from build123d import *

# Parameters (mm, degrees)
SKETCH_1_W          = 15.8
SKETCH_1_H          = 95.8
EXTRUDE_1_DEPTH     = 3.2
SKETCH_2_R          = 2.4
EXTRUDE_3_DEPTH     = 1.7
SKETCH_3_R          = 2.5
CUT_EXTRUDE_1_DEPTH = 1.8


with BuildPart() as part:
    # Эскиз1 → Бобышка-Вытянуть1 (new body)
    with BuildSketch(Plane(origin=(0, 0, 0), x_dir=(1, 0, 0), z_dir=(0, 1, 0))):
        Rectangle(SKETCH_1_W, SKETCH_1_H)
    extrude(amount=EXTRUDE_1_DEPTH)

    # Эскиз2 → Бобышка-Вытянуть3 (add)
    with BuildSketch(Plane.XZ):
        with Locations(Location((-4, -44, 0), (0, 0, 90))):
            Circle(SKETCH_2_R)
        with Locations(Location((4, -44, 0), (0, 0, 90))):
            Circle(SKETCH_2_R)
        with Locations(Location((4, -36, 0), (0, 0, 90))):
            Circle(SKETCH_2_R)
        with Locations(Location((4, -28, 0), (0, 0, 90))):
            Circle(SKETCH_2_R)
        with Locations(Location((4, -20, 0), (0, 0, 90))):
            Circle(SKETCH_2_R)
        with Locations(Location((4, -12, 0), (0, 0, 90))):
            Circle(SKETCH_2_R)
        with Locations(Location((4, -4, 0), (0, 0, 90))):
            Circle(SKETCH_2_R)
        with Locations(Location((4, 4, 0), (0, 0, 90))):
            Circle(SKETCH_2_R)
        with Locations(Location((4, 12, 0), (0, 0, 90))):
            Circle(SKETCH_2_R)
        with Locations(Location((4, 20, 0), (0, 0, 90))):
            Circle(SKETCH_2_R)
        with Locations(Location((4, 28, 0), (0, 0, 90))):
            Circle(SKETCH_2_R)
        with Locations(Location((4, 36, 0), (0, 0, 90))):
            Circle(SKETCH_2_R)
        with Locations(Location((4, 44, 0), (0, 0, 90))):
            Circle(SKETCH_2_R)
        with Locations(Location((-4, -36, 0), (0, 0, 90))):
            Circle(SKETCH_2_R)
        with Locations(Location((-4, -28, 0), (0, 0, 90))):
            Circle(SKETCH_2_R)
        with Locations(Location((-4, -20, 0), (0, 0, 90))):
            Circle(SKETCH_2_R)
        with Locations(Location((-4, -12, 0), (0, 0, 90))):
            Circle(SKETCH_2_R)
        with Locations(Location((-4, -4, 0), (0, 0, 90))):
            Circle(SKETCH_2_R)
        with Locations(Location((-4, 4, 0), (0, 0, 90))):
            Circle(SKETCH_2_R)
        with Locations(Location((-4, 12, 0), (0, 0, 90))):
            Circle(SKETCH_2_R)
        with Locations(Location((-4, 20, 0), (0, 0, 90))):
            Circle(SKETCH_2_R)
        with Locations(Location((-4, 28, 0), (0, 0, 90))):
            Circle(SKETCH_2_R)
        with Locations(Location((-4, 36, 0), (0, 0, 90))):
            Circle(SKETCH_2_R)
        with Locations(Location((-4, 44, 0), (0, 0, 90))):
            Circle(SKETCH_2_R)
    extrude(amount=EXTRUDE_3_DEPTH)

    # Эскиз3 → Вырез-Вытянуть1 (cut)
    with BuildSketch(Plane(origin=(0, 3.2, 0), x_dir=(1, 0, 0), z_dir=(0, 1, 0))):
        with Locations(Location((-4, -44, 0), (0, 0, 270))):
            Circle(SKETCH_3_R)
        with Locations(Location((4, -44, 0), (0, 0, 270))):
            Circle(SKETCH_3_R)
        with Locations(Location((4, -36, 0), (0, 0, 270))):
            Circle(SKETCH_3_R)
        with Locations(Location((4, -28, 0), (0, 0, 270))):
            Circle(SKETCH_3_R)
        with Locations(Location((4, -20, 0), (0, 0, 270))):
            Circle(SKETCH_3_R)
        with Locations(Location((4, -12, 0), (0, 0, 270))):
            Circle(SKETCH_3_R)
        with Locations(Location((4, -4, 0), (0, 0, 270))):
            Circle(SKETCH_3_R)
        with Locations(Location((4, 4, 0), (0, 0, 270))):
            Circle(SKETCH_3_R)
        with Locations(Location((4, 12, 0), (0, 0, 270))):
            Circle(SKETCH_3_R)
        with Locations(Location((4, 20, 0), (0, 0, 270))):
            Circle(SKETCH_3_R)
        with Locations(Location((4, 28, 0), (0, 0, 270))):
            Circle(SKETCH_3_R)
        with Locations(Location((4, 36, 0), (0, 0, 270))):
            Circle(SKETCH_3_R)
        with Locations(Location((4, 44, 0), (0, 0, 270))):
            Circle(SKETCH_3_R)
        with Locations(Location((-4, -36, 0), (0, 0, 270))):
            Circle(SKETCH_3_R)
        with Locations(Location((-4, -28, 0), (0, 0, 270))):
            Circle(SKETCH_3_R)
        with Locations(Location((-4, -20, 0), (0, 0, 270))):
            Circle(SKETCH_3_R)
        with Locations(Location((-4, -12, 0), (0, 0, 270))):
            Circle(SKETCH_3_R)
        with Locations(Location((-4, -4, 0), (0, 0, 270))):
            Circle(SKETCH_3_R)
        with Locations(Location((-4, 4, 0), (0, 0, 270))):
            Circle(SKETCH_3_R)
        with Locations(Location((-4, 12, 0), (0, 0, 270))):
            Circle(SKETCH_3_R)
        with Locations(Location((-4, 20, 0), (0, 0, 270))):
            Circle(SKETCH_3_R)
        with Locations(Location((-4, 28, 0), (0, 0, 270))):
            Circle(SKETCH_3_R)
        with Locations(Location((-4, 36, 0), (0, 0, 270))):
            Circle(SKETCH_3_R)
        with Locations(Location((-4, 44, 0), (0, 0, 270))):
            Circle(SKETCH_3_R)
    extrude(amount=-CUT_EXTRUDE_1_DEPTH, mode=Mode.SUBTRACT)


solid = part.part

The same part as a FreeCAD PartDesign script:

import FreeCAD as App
import Part
import Sketcher

doc = App.newDocument("Part")
body = doc.addObject("PartDesign::Body", "Body")

# Sketch on XZ plane
sketch1 = body.newObject("Sketcher::SketchObject", "Sketch")
sketch1.AttachmentSupport = (doc.getObject("XZ_Plane"), [""])
sketch1.MapMode = "FlatFace"
sketch1.addGeometry(Part.LineSegment(App.Vector(-7.9, -47.9, 0), App.Vector(-7.9, 47.9, 0)), False)
sketch1.addGeometry(Part.LineSegment(App.Vector(-7.9, 47.9, 0), App.Vector(7.9, 47.9, 0)), False)
sketch1.addGeometry(Part.LineSegment(App.Vector(7.9, 47.9, 0), App.Vector(7.9, -47.9, 0)), False)
sketch1.addGeometry(Part.LineSegment(App.Vector(7.9, -47.9, 0), App.Vector(-7.9, -47.9, 0)), False)
sketch1.addConstraint(Sketcher.Constraint("Coincident", 0, 2, 1, 1))
sketch1.addConstraint(Sketcher.Constraint("Coincident", 1, 2, 2, 1))
sketch1.addConstraint(Sketcher.Constraint("Coincident", 2, 2, 3, 1))
sketch1.addConstraint(Sketcher.Constraint("Coincident", 3, 2, 0, 1))
sketch1.addConstraint(Sketcher.Constraint("Vertical", 0))
sketch1.addConstraint(Sketcher.Constraint("Horizontal", 1))
sketch1.addConstraint(Sketcher.Constraint("Vertical", 2))
sketch1.addConstraint(Sketcher.Constraint("Horizontal", 3))
sketch1.addConstraint(Sketcher.Constraint("Symmetric", 0, 2, 2, 2, -1, 1))
sketch1.addConstraint(Sketcher.Constraint("DistanceX", 1, 1, 1, 2, 15.8))
sketch1.addConstraint(Sketcher.Constraint("DistanceY", 0, 1, 0, 2, 95.8))
pad1 = body.newObject("PartDesign::Pad", "Pad")
pad1.Profile = sketch1
pad1.Length = 3.2
pad1.Reversed = True

# Sketch on XZ plane
sketch2 = body.newObject("Sketcher::SketchObject", "Sketch001")
sketch2.AttachmentSupport = (doc.getObject("XZ_Plane"), [""])
sketch2.MapMode = "FlatFace"
sketch2.addGeometry(Part.Circle(App.Vector(-4, -44, 0), App.Vector(0, 0, 1), 2.4), False)
sketch2.addGeometry(Part.Circle(App.Vector(4, -44, 0), App.Vector(0, 0, 1), 2.4), False)
sketch2.addGeometry(Part.Circle(App.Vector(4, -36, 0), App.Vector(0, 0, 1), 2.4), False)
sketch2.addGeometry(Part.Circle(App.Vector(4, -28, 0), App.Vector(0, 0, 1), 2.4), False)
sketch2.addGeometry(Part.Circle(App.Vector(4, -20, 0), App.Vector(0, 0, 1), 2.4), False)
sketch2.addGeometry(Part.Circle(App.Vector(4, -12, 0), App.Vector(0, 0, 1), 2.4), False)
sketch2.addGeometry(Part.Circle(App.Vector(4, -4, 0), App.Vector(0, 0, 1), 2.4), False)
sketch2.addGeometry(Part.Circle(App.Vector(4, 4, 0), App.Vector(0, 0, 1), 2.4), False)
sketch2.addGeometry(Part.Circle(App.Vector(4, 12, 0), App.Vector(0, 0, 1), 2.4), False)
sketch2.addGeometry(Part.Circle(App.Vector(4, 20, 0), App.Vector(0, 0, 1), 2.4), False)
sketch2.addGeometry(Part.Circle(App.Vector(4, 28, 0), App.Vector(0, 0, 1), 2.4), False)
sketch2.addGeometry(Part.Circle(App.Vector(4, 36, 0), App.Vector(0, 0, 1), 2.4), False)
sketch2.addGeometry(Part.Circle(App.Vector(4, 44, 0), App.Vector(0, 0, 1), 2.4), False)
sketch2.addGeometry(Part.Circle(App.Vector(-4, -36, 0), App.Vector(0, 0, 1), 2.4), False)
sketch2.addGeometry(Part.Circle(App.Vector(-4, -28, 0), App.Vector(0, 0, 1), 2.4), False)
sketch2.addGeometry(Part.Circle(App.Vector(-4, -20, 0), App.Vector(0, 0, 1), 2.4), False)
sketch2.addGeometry(Part.Circle(App.Vector(-4, -12, 0), App.Vector(0, 0, 1), 2.4), False)
sketch2.addGeometry(Part.Circle(App.Vector(-4, -4, 0), App.Vector(0, 0, 1), 2.4), False)
sketch2.addGeometry(Part.Circle(App.Vector(-4, 4, 0), App.Vector(0, 0, 1), 2.4), False)
sketch2.addGeometry(Part.Circle(App.Vector(-4, 12, 0), App.Vector(0, 0, 1), 2.4), False)
sketch2.addGeometry(Part.Circle(App.Vector(-4, 20, 0), App.Vector(0, 0, 1), 2.4), False)
sketch2.addGeometry(Part.Circle(App.Vector(-4, 28, 0), App.Vector(0, 0, 1), 2.4), False)
sketch2.addGeometry(Part.Circle(App.Vector(-4, 36, 0), App.Vector(0, 0, 1), 2.4), False)
sketch2.addGeometry(Part.Circle(App.Vector(-4, 44, 0), App.Vector(0, 0, 1), 2.4), False)
sketch2.addConstraint(Sketcher.Constraint("Equal", 0, 1))
sketch2.addConstraint(Sketcher.Constraint("Equal", 1, 2))
sketch2.addConstraint(Sketcher.Constraint("Equal", 2, 3))
sketch2.addConstraint(Sketcher.Constraint("Equal", 3, 4))
sketch2.addConstraint(Sketcher.Constraint("Equal", 4, 5))
sketch2.addConstraint(Sketcher.Constraint("Equal", 5, 6))
sketch2.addConstraint(Sketcher.Constraint("Equal", 6, 7))
sketch2.addConstraint(Sketcher.Constraint("Equal", 7, 8))
sketch2.addConstraint(Sketcher.Constraint("Equal", 8, 9))
sketch2.addConstraint(Sketcher.Constraint("Equal", 9, 10))
sketch2.addConstraint(Sketcher.Constraint("Equal", 10, 11))
sketch2.addConstraint(Sketcher.Constraint("Equal", 11, 12))
sketch2.addConstraint(Sketcher.Constraint("Equal", 12, 13))
sketch2.addConstraint(Sketcher.Constraint("Equal", 13, 14))
sketch2.addConstraint(Sketcher.Constraint("Equal", 14, 15))
sketch2.addConstraint(Sketcher.Constraint("Equal", 15, 16))
sketch2.addConstraint(Sketcher.Constraint("Equal", 16, 17))
sketch2.addConstraint(Sketcher.Constraint("Equal", 17, 18))
sketch2.addConstraint(Sketcher.Constraint("Equal", 18, 19))
sketch2.addConstraint(Sketcher.Constraint("Equal", 19, 20))
sketch2.addConstraint(Sketcher.Constraint("Equal", 20, 21))
sketch2.addConstraint(Sketcher.Constraint("Equal", 21, 22))
sketch2.addConstraint(Sketcher.Constraint("Equal", 22, 23))
sketch2.addConstraint(Sketcher.Constraint("Symmetric", 0, 3, 12, 3, -1, 1))
sketch2.addConstraint(Sketcher.Constraint("Symmetric", 11, 3, 13, 3, -1, 1))
sketch2.addConstraint(Sketcher.Constraint("Symmetric", 10, 3, 14, 3, -1, 1))
sketch2.addConstraint(Sketcher.Constraint("Symmetric", 9, 3, 15, 3, -1, 1))
sketch2.addConstraint(Sketcher.Constraint("Symmetric", 8, 3, 16, 3, -1, 1))
sketch2.addConstraint(Sketcher.Constraint("Symmetric", 7, 3, 17, 3, -1, 1))
sketch2.addConstraint(Sketcher.Constraint("Symmetric", 6, 3, 18, 3, -1, 1))
sketch2.addConstraint(Sketcher.Constraint("Symmetric", 5, 3, 19, 3, -1, 1))
sketch2.addConstraint(Sketcher.Constraint("Symmetric", 4, 3, 20, 3, -1, 1))
sketch2.addConstraint(Sketcher.Constraint("Symmetric", 3, 3, 21, 3, -1, 1))
sketch2.addConstraint(Sketcher.Constraint("Symmetric", 2, 3, 22, 3, -1, 1))
sketch2.addConstraint(Sketcher.Constraint("Symmetric", 1, 3, 23, 3, -1, 1))
sketch2.addConstraint(Sketcher.Constraint("Symmetric", 0, 3, 1, 3, -2))
sketch2.addConstraint(Sketcher.Constraint("Symmetric", 2, 3, 13, 3, -2))
sketch2.addConstraint(Sketcher.Constraint("Symmetric", 3, 3, 14, 3, -2))
sketch2.addConstraint(Sketcher.Constraint("Symmetric", 4, 3, 15, 3, -2))
sketch2.addConstraint(Sketcher.Constraint("Symmetric", 5, 3, 16, 3, -2))
sketch2.addConstraint(Sketcher.Constraint("Symmetric", 6, 3, 17, 3, -2))
sketch2.addConstraint(Sketcher.Constraint("Vertical", 1, 3, 2, 3))
sketch2.addConstraint(Sketcher.Constraint("Vertical", 2, 3, 3, 3))
sketch2.addConstraint(Sketcher.Constraint("Vertical", 3, 3, 4, 3))
sketch2.addConstraint(Sketcher.Constraint("Vertical", 4, 3, 5, 3))
sketch2.addConstraint(Sketcher.Constraint("Vertical", 5, 3, 6, 3))
sketch2.addConstraint(Sketcher.Constraint("Diameter", 0, 4.8))
sketch2.addConstraint(Sketcher.Constraint("DistanceX", 0, 3, -1, 1, 4.0))
sketch2.addConstraint(Sketcher.Constraint("DistanceY", 0, 3, -1, 1, 44.0))
sketch2.addConstraint(Sketcher.Constraint("DistanceY", 2, 3, -1, 1, 36.0))
sketch2.addConstraint(Sketcher.Constraint("DistanceY", 3, 3, -1, 1, 28.0))
sketch2.addConstraint(Sketcher.Constraint("DistanceY", 4, 3, -1, 1, 20.0))
sketch2.addConstraint(Sketcher.Constraint("DistanceY", 5, 3, -1, 1, 12.0))
sketch2.addConstraint(Sketcher.Constraint("DistanceY", 6, 3, -1, 1, 4.0))
pad2 = body.newObject("PartDesign::Pad", "Pad001")
pad2.Profile = sketch2
pad2.Length = 1.7

# Sketch on XZ plane
sketch3 = body.newObject("Sketcher::SketchObject", "Sketch002")
sketch3.AttachmentSupport = (doc.getObject("XZ_Plane"), [""])
sketch3.MapMode = "FlatFace"
sketch3.AttachmentOffset = App.Placement(App.Vector(0, 0, -3.2), App.Rotation())
sketch3.addGeometry(Part.Circle(App.Vector(-4, 44, 0), App.Vector(0, 0, 1), 2.5), False)
sketch3.addGeometry(Part.Circle(App.Vector(4, 44, 0), App.Vector(0, 0, 1), 2.5), False)
sketch3.addGeometry(Part.Circle(App.Vector(4, 36, 0), App.Vector(0, 0, 1), 2.5), False)
sketch3.addGeometry(Part.Circle(App.Vector(4, 28, 0), App.Vector(0, 0, 1), 2.5), False)
sketch3.addGeometry(Part.Circle(App.Vector(4, 20, 0), App.Vector(0, 0, 1), 2.5), False)
sketch3.addGeometry(Part.Circle(App.Vector(4, 12, 0), App.Vector(0, 0, 1), 2.5), False)
sketch3.addGeometry(Part.Circle(App.Vector(4, 4, 0), App.Vector(0, 0, 1), 2.5), False)
sketch3.addGeometry(Part.Circle(App.Vector(4, -4, 0), App.Vector(0, 0, 1), 2.5), False)
sketch3.addGeometry(Part.Circle(App.Vector(4, -12, 0), App.Vector(0, 0, 1), 2.5), False)
sketch3.addGeometry(Part.Circle(App.Vector(4, -20, 0), App.Vector(0, 0, 1), 2.5), False)
sketch3.addGeometry(Part.Circle(App.Vector(4, -28, 0), App.Vector(0, 0, 1), 2.5), False)
sketch3.addGeometry(Part.Circle(App.Vector(4, -36, 0), App.Vector(0, 0, 1), 2.5), False)
sketch3.addGeometry(Part.Circle(App.Vector(4, -44, 0), App.Vector(0, 0, 1), 2.5), False)
sketch3.addGeometry(Part.Circle(App.Vector(-4, 36, 0), App.Vector(0, 0, 1), 2.5), False)
sketch3.addGeometry(Part.Circle(App.Vector(-4, 28, 0), App.Vector(0, 0, 1), 2.5), False)
sketch3.addGeometry(Part.Circle(App.Vector(-4, 20, 0), App.Vector(0, 0, 1), 2.5), False)
sketch3.addGeometry(Part.Circle(App.Vector(-4, 12, 0), App.Vector(0, 0, 1), 2.5), False)
sketch3.addGeometry(Part.Circle(App.Vector(-4, 4, 0), App.Vector(0, 0, 1), 2.5), False)
sketch3.addGeometry(Part.Circle(App.Vector(-4, -4, 0), App.Vector(0, 0, 1), 2.5), False)
sketch3.addGeometry(Part.Circle(App.Vector(-4, -12, 0), App.Vector(0, 0, 1), 2.5), False)
sketch3.addGeometry(Part.Circle(App.Vector(-4, -20, 0), App.Vector(0, 0, 1), 2.5), False)
sketch3.addGeometry(Part.Circle(App.Vector(-4, -28, 0), App.Vector(0, 0, 1), 2.5), False)
sketch3.addGeometry(Part.Circle(App.Vector(-4, -36, 0), App.Vector(0, 0, 1), 2.5), False)
sketch3.addGeometry(Part.Circle(App.Vector(-4, -44, 0), App.Vector(0, 0, 1), 2.5), False)
sketch3.addConstraint(Sketcher.Constraint("Equal", 0, 1))
sketch3.addConstraint(Sketcher.Constraint("Equal", 1, 2))
sketch3.addConstraint(Sketcher.Constraint("Equal", 2, 3))
sketch3.addConstraint(Sketcher.Constraint("Equal", 3, 4))
sketch3.addConstraint(Sketcher.Constraint("Equal", 4, 5))
sketch3.addConstraint(Sketcher.Constraint("Equal", 5, 6))
sketch3.addConstraint(Sketcher.Constraint("Equal", 6, 7))
sketch3.addConstraint(Sketcher.Constraint("Equal", 7, 8))
sketch3.addConstraint(Sketcher.Constraint("Equal", 8, 9))
sketch3.addConstraint(Sketcher.Constraint("Equal", 9, 10))
sketch3.addConstraint(Sketcher.Constraint("Equal", 10, 11))
sketch3.addConstraint(Sketcher.Constraint("Equal", 11, 12))
sketch3.addConstraint(Sketcher.Constraint("Equal", 12, 13))
sketch3.addConstraint(Sketcher.Constraint("Equal", 13, 14))
sketch3.addConstraint(Sketcher.Constraint("Equal", 14, 15))
sketch3.addConstraint(Sketcher.Constraint("Equal", 15, 16))
sketch3.addConstraint(Sketcher.Constraint("Equal", 16, 17))
sketch3.addConstraint(Sketcher.Constraint("Equal", 17, 18))
sketch3.addConstraint(Sketcher.Constraint("Equal", 18, 19))
sketch3.addConstraint(Sketcher.Constraint("Equal", 19, 20))
sketch3.addConstraint(Sketcher.Constraint("Equal", 20, 21))
sketch3.addConstraint(Sketcher.Constraint("Equal", 21, 22))
sketch3.addConstraint(Sketcher.Constraint("Equal", 22, 23))
sketch3.addConstraint(Sketcher.Constraint("Symmetric", 0, 3, 12, 3, -1, 1))
sketch3.addConstraint(Sketcher.Constraint("Symmetric", 11, 3, 13, 3, -1, 1))
sketch3.addConstraint(Sketcher.Constraint("Symmetric", 10, 3, 14, 3, -1, 1))
sketch3.addConstraint(Sketcher.Constraint("Symmetric", 9, 3, 15, 3, -1, 1))
sketch3.addConstraint(Sketcher.Constraint("Symmetric", 8, 3, 16, 3, -1, 1))
sketch3.addConstraint(Sketcher.Constraint("Symmetric", 7, 3, 17, 3, -1, 1))
sketch3.addConstraint(Sketcher.Constraint("Symmetric", 6, 3, 18, 3, -1, 1))
sketch3.addConstraint(Sketcher.Constraint("Symmetric", 5, 3, 19, 3, -1, 1))
sketch3.addConstraint(Sketcher.Constraint("Symmetric", 4, 3, 20, 3, -1, 1))
sketch3.addConstraint(Sketcher.Constraint("Symmetric", 3, 3, 21, 3, -1, 1))
sketch3.addConstraint(Sketcher.Constraint("Symmetric", 2, 3, 22, 3, -1, 1))
sketch3.addConstraint(Sketcher.Constraint("Symmetric", 1, 3, 23, 3, -1, 1))
sketch3.addConstraint(Sketcher.Constraint("Symmetric", 0, 3, 1, 3, -2))
sketch3.addConstraint(Sketcher.Constraint("Symmetric", 2, 3, 13, 3, -2))
sketch3.addConstraint(Sketcher.Constraint("Symmetric", 3, 3, 14, 3, -2))
sketch3.addConstraint(Sketcher.Constraint("Symmetric", 4, 3, 15, 3, -2))
sketch3.addConstraint(Sketcher.Constraint("Symmetric", 5, 3, 16, 3, -2))
sketch3.addConstraint(Sketcher.Constraint("Symmetric", 6, 3, 17, 3, -2))
sketch3.addConstraint(Sketcher.Constraint("Vertical", 1, 3, 2, 3))
sketch3.addConstraint(Sketcher.Constraint("Vertical", 2, 3, 3, 3))
sketch3.addConstraint(Sketcher.Constraint("Vertical", 3, 3, 4, 3))
sketch3.addConstraint(Sketcher.Constraint("Vertical", 4, 3, 5, 3))
sketch3.addConstraint(Sketcher.Constraint("Vertical", 5, 3, 6, 3))
sketch3.addConstraint(Sketcher.Constraint("Diameter", 0, 5.0))
sketch3.addConstraint(Sketcher.Constraint("DistanceX", 0, 3, -1, 1, 4.0))
sketch3.addConstraint(Sketcher.Constraint("DistanceY", -1, 1, 0, 3, 44.0))
sketch3.addConstraint(Sketcher.Constraint("DistanceY", -1, 1, 2, 3, 36.0))
sketch3.addConstraint(Sketcher.Constraint("DistanceY", -1, 1, 3, 3, 28.0))
sketch3.addConstraint(Sketcher.Constraint("DistanceY", -1, 1, 4, 3, 20.0))
sketch3.addConstraint(Sketcher.Constraint("DistanceY", -1, 1, 5, 3, 12.0))
sketch3.addConstraint(Sketcher.Constraint("DistanceY", -1, 1, 6, 3, 4.0))
pocket1 = body.newObject("PartDesign::Pocket", "Pocket")
pocket1.Profile = sketch3
pocket1.Length = 1.8
pocket1.Reversed = True

doc.recompute()
